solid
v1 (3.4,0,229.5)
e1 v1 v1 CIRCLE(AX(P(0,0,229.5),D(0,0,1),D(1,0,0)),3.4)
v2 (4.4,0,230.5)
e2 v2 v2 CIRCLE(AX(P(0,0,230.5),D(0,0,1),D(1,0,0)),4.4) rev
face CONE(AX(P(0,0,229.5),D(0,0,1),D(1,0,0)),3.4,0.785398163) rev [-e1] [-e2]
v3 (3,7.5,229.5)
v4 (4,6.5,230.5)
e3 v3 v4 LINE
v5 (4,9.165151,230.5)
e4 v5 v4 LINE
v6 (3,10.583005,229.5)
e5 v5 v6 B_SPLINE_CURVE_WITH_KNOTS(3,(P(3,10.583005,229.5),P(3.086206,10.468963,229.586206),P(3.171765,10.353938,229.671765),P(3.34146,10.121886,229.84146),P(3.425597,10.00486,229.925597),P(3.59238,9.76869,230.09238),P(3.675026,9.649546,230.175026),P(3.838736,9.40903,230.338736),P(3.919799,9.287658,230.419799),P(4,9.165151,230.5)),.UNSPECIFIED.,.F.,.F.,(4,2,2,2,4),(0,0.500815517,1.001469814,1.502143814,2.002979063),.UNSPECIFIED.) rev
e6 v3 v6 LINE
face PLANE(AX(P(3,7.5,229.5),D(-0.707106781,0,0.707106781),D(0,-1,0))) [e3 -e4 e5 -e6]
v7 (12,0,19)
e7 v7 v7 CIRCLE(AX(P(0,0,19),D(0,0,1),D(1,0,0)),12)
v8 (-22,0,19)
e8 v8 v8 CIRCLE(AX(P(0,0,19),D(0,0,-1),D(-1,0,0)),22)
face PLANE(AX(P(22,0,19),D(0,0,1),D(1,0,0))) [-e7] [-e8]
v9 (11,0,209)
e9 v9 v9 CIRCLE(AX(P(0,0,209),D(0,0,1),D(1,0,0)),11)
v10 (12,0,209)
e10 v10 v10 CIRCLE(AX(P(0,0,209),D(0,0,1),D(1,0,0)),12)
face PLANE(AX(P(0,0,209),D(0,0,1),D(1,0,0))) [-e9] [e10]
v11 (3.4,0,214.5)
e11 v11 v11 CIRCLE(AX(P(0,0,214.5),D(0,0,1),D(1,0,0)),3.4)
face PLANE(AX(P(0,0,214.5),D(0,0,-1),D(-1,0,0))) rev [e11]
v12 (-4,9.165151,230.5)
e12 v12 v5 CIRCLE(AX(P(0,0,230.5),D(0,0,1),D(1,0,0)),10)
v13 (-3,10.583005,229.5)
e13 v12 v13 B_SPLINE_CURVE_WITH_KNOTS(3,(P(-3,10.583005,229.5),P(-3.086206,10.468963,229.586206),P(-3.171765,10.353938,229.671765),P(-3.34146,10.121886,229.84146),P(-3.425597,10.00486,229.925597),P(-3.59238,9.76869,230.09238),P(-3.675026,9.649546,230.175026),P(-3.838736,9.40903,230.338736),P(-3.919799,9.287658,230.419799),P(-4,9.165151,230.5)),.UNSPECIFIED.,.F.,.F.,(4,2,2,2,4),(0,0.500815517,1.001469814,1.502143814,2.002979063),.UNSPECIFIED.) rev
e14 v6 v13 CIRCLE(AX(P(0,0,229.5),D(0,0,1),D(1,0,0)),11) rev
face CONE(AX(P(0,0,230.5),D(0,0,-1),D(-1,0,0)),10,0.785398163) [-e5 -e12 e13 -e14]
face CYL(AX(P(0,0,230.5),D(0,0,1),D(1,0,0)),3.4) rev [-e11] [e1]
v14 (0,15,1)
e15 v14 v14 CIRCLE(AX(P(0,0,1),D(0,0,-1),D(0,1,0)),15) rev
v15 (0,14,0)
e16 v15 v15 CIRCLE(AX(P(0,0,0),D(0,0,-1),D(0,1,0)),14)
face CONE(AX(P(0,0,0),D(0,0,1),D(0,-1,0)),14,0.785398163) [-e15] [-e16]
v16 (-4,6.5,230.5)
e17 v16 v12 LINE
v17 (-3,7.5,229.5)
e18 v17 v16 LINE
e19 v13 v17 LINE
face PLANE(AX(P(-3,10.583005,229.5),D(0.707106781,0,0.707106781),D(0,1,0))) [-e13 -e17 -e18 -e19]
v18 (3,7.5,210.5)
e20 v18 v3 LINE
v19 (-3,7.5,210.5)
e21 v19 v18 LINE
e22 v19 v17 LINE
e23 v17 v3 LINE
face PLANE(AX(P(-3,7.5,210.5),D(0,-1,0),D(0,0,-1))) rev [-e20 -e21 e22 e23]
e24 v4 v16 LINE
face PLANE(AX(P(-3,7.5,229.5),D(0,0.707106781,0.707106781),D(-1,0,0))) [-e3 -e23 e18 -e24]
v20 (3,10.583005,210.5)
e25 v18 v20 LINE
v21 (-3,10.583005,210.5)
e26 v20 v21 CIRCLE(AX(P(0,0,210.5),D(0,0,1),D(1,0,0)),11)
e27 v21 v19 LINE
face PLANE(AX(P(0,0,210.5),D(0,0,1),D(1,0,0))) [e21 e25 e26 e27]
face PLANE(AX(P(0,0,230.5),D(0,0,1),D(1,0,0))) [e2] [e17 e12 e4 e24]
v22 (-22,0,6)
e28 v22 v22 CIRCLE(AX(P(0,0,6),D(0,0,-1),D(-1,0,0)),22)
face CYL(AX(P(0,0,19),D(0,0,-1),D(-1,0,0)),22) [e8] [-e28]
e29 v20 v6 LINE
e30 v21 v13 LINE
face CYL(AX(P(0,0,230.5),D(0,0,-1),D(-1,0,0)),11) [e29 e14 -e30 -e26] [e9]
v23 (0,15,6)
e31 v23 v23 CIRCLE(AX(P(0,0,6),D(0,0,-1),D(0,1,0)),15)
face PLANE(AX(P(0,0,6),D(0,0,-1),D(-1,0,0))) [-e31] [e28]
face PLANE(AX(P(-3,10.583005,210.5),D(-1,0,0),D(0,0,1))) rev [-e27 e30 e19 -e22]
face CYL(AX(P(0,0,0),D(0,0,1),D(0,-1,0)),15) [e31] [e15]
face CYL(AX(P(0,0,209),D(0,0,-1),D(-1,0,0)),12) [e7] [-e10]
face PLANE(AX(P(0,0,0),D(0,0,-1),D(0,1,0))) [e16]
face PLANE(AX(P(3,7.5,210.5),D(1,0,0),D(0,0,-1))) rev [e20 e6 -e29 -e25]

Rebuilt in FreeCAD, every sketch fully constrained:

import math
import FreeCAD as App
import Part
import Sketcher
from FreeCAD import Vector
Q = App.Units.Quantity


def edges_at(feature, points):
    """Names of the edges that pass closest to the given points."""
    edges = feature.Shape.Edges
    near = lambda p: min(range(len(edges)), key=lambda i: edges[i].distToShape(Part.Vertex(*p))[0])
    return sorted({f"Edge{near(p) + 1}" for p in points})

doc = App.newDocument("Part")
params = doc.addObject("Spreadsheet::Sheet", "Params")
for row, (alias, value) in enumerate([
    ("sketch1_width", "22 mm"),
    ("sketch1_height", "13 mm"),
    ("revolution_angle", "360 deg"),
    ("sketch2_diameter", "24 mm"),
    ("pad1_length", "190 mm"),
    ("sketch3_diameter", "22 mm"),
    ("pad2_length", "21.5 mm"),
    ("sketch4_radius", "11 mm"),
    ("sketch4_width", "6 mm"),
    ("pocket1_length", "20 mm"),
    ("sketch5_diameter", "30 mm"),
    ("pad3_length", "6 mm"),
    ("sketch6_diameter", "6.8 mm"),
    ("hole_diameter", "6.8 mm"),
    ("hole_depth", "16 mm"),
    ("chamfer_size", "1 mm"),
], start=1):
    params.set(f"A{row}", alias)
    params.set(f"B{row}", "=" + value)
    params.setAlias(f"B{row}", alias)

body = doc.addObject("PartDesign::Body", "Body")

sketch1 = body.newObject("Sketcher::SketchObject", "Sketch")
sketch1.AttachmentSupport = (doc.getObject("XZ_Plane"), [""])
sketch1.MapMode = "FlatFace"
sketch1.addGeometry(Part.LineSegment(Vector(0, 19, 0), Vector(0, 6, 0)), False)
sketch1.addGeometry(Part.LineSegment(Vector(0, 6, 0), Vector(22, 6, 0)), False)
sketch1.addGeometry(Part.LineSegment(Vector(22, 6, 0), Vector(22, 19, 0)), False)
sketch1.addGeometry(Part.LineSegment(Vector(22, 19, 0), Vector(0, 19, 0)), False)
sketch1.addConstraint(Sketcher.Constraint("Coincident", 0, 2, 1, 1))
sketch1.addConstraint(Sketcher.Constraint("Coincident", 1, 2, 2, 1))
sketch1.addConstraint(Sketcher.Constraint("Coincident", 2, 2, 3, 1))
sketch1.addConstraint(Sketcher.Constraint("Coincident", 3, 2, 0, 1))
sketch1.addConstraint(Sketcher.Constraint("Vertical", 0))
sketch1.addConstraint(Sketcher.Constraint("Horizontal", 1))
sketch1.addConstraint(Sketcher.Constraint("Vertical", 2))
sketch1.addConstraint(Sketcher.Constraint("Horizontal", 3))
sketch1.addConstraint(Sketcher.Constraint("PointOnObject", 0, 2, -2))
sketch1.addConstraint(Sketcher.Constraint("DistanceX", 1, 1, 1, 2, Q("22 mm")))
sketch1.addConstraint(Sketcher.Constraint("DistanceY", 0, 2, 0, 1, Q("13 mm")))
sketch1.addConstraint(Sketcher.Constraint("DistanceY", -1, 1, 0, 2, Q("6 mm")))
sketch1.setExpression("Constraints[9]", "Params.sketch1_width")
sketch1.setExpression("Constraints[10]", "Params.sketch1_height")
revolution = body.newObject("PartDesign::Revolution", "Revolution")
revolution.Profile = sketch1
revolution.ReferenceAxis = (sketch1, ["V_Axis"])
revolution.setExpression("Angle", "Params.revolution_angle")

sketch2 = body.newObject("Sketcher::SketchObject", "Sketch001")
sketch2.AttachmentSupport = (doc.getObject("XY_Plane"), [""])
sketch2.MapMode = "FlatFace"
sketch2.AttachmentOffset = App.Placement(Vector(0, 0, 19), App.Rotation())
sketch2.addGeometry(Part.Circle(Vector(0, 0, 0), Vector(0, 0, 1), 12), False)
sketch2.addConstraint(Sketcher.Constraint("Coincident", 0, 3, -1, 1))
sketch2.addConstraint(Sketcher.Constraint("Diameter", 0, Q("24 mm")))
sketch2.setExpression("Constraints[1]", "Params.sketch2_diameter")
pad1 = body.newObject("PartDesign::Pad", "Pad")
pad1.Profile = sketch2
pad1.setExpression("Length", "Params.pad1_length")

sketch3 = body.newObject("Sketcher::SketchObject", "Sketch002")
sketch3.AttachmentSupport = (doc.getObject("XY_Plane"), [""])
sketch3.MapMode = "FlatFace"
sketch3.AttachmentOffset = App.Placement(Vector(0, 0, 209), App.Rotation())
sketch3.addGeometry(Part.Circle(Vector(0, 0, 0), Vector(0, 0, 1), 11), False)
sketch3.addConstraint(Sketcher.Constraint("Coincident", 0, 3, -1, 1))
sketch3.addConstraint(Sketcher.Constraint("Diameter", 0, Q("22 mm")))
sketch3.setExpression("Constraints[1]", "Params.sketch3_diameter")
pad2 = body.newObject("PartDesign::Pad", "Pad001")
pad2.Profile = sketch3
pad2.setExpression("Length", "Params.pad2_length")

sketch4 = body.newObject("Sketcher::SketchObject", "Sketch003")
sketch4.AttachmentSupport = (doc.getObject("XY_Plane"), [""])
sketch4.MapMode = "FlatFace"
sketch4.AttachmentOffset = App.Placement(Vector(0, 0, 210.5), App.Rotation())
sketch4.addGeometry(Part.LineSegment(Vector(3, 7.5, 0), Vector(3, 10.6, 0)), False)
sketch4.addGeometry(Part.ArcOfCircle(Part.Circle(Vector(0, 0, 0), Vector(0, 0, 1), 11), math.radians(74), math.radians(106)), False)
sketch4.addGeometry(Part.LineSegment(Vector(-3, 10.6, 0), Vector(-3, 7.5, 0)), False)
sketch4.addGeometry(Part.LineSegment(Vector(-3, 7.5, 0), Vector(3, 7.5, 0)), False)
sketch4.addConstraint(Sketcher.Constraint("Coincident", 0, 2, 1, 1))
sketch4.addConstraint(Sketcher.Constraint("Coincident", 1, 2, 2, 1))
sketch4.addConstraint(Sketcher.Constraint("Coincident", 2, 2, 3, 1))
sketch4.addConstraint(Sketcher.Constraint("Coincident", 3, 2, 0, 1))
sketch4.addConstraint(Sketcher.Constraint("Vertical", 0))
sketch4.addConstraint(Sketcher.Constraint("Vertical", 2))
sketch4.addConstraint(Sketcher.Constraint("Horizontal", 3))
sketch4.addConstraint(Sketcher.Constraint("Coincident", 1, 3, -1, 1))
sketch4.addConstraint(Sketcher.Constraint("Horizontal", 0, 2, 1, 2))
sketch4.addConstraint(Sketcher.Constraint("Radius", 1, Q("11 mm")))
sketch4.addConstraint(Sketcher.Constraint("DistanceX", 3, 1, 3, 2, Q("6 mm")))
sketch4.addConstraint(Sketcher.Constraint("DistanceY", -1, 1, 2, 2, Q("7.5 mm")))
sketch4.setExpression("Constraints[9]", "Params.sketch4_radius")
sketch4.setExpression("Constraints[10]", "Params.sketch4_width")
pocket1 = body.newObject("PartDesign::Pocket", "Pocket")
pocket1.Profile = sketch4
pocket1.setExpression("Length", "Params.pocket1_length")
pocket1.Reversed = True

sketch5 = body.newObject("Sketcher::SketchObject", "Sketch004")
sketch5.AttachmentSupport = (doc.getObject("XY_Plane"), [""])
sketch5.MapMode = "FlatFace"
sketch5.AttachmentOffset = App.Placement(Vector(0, 0, 6), App.Rotation())
sketch5.addGeometry(Part.Circle(Vector(0, 0, 0), Vector(0, 0, 1), 15), False)
sketch5.addConstraint(Sketcher.Constraint("Coincident", 0, 3, -1, 1))
sketch5.addConstraint(Sketcher.Constraint("Diameter", 0, Q("30 mm")))
sketch5.setExpression("Constraints[1]", "Params.sketch5_diameter")
pad3 = body.newObject("PartDesign::Pad", "Pad002")
pad3.Profile = sketch5
pad3.setExpression("Length", "Params.pad3_length")
pad3.Reversed = True

sketch6 = body.newObject("Sketcher::SketchObject", "Sketch005")
sketch6.AttachmentSupport = (doc.getObject("XY_Plane"), [""])
sketch6.MapMode = "FlatFace"
sketch6.AttachmentOffset = App.Placement(Vector(0, 0, 230.5), App.Rotation())
sketch6.addGeometry(Part.Circle(Vector(0, 0, 0), Vector(0, 0, 1), 3.4), False)
sketch6.addConstraint(Sketcher.Constraint("Coincident", 0, 3, -1, 1))
sketch6.addConstraint(Sketcher.Constraint("Diameter", 0, Q("6.8 mm")))
sketch6.setExpression("Constraints[1]", "Params.sketch6_diameter")
doc.recompute()
hole = body.newObject("PartDesign::Hole", "Hole")
hole.Profile = sketch6
hole.ThreadType = "None"
hole.setExpression("Diameter", "Params.hole_diameter")
hole.DepthType = "Dimension"
hole.setExpression("Depth", "Params.hole_depth")
hole.DrillPoint = "Flat"
doc.recompute()

chamfer = body.newObject("PartDesign::Chamfer", "Chamfer")
chamfer.Base = (hole, edges_at(hole, [
    (-6.633, -8.775, 230.5),
    (0, 7.5, 230.5),
    (3, 9.042, 230.5),
    (-3, 9.042, 230.5),
    (0, -15, 0),
    (3.4, 0, 230.5),
]))
chamfer.setExpression("Size", "Params.chamfer_size")

doc.recompute()
